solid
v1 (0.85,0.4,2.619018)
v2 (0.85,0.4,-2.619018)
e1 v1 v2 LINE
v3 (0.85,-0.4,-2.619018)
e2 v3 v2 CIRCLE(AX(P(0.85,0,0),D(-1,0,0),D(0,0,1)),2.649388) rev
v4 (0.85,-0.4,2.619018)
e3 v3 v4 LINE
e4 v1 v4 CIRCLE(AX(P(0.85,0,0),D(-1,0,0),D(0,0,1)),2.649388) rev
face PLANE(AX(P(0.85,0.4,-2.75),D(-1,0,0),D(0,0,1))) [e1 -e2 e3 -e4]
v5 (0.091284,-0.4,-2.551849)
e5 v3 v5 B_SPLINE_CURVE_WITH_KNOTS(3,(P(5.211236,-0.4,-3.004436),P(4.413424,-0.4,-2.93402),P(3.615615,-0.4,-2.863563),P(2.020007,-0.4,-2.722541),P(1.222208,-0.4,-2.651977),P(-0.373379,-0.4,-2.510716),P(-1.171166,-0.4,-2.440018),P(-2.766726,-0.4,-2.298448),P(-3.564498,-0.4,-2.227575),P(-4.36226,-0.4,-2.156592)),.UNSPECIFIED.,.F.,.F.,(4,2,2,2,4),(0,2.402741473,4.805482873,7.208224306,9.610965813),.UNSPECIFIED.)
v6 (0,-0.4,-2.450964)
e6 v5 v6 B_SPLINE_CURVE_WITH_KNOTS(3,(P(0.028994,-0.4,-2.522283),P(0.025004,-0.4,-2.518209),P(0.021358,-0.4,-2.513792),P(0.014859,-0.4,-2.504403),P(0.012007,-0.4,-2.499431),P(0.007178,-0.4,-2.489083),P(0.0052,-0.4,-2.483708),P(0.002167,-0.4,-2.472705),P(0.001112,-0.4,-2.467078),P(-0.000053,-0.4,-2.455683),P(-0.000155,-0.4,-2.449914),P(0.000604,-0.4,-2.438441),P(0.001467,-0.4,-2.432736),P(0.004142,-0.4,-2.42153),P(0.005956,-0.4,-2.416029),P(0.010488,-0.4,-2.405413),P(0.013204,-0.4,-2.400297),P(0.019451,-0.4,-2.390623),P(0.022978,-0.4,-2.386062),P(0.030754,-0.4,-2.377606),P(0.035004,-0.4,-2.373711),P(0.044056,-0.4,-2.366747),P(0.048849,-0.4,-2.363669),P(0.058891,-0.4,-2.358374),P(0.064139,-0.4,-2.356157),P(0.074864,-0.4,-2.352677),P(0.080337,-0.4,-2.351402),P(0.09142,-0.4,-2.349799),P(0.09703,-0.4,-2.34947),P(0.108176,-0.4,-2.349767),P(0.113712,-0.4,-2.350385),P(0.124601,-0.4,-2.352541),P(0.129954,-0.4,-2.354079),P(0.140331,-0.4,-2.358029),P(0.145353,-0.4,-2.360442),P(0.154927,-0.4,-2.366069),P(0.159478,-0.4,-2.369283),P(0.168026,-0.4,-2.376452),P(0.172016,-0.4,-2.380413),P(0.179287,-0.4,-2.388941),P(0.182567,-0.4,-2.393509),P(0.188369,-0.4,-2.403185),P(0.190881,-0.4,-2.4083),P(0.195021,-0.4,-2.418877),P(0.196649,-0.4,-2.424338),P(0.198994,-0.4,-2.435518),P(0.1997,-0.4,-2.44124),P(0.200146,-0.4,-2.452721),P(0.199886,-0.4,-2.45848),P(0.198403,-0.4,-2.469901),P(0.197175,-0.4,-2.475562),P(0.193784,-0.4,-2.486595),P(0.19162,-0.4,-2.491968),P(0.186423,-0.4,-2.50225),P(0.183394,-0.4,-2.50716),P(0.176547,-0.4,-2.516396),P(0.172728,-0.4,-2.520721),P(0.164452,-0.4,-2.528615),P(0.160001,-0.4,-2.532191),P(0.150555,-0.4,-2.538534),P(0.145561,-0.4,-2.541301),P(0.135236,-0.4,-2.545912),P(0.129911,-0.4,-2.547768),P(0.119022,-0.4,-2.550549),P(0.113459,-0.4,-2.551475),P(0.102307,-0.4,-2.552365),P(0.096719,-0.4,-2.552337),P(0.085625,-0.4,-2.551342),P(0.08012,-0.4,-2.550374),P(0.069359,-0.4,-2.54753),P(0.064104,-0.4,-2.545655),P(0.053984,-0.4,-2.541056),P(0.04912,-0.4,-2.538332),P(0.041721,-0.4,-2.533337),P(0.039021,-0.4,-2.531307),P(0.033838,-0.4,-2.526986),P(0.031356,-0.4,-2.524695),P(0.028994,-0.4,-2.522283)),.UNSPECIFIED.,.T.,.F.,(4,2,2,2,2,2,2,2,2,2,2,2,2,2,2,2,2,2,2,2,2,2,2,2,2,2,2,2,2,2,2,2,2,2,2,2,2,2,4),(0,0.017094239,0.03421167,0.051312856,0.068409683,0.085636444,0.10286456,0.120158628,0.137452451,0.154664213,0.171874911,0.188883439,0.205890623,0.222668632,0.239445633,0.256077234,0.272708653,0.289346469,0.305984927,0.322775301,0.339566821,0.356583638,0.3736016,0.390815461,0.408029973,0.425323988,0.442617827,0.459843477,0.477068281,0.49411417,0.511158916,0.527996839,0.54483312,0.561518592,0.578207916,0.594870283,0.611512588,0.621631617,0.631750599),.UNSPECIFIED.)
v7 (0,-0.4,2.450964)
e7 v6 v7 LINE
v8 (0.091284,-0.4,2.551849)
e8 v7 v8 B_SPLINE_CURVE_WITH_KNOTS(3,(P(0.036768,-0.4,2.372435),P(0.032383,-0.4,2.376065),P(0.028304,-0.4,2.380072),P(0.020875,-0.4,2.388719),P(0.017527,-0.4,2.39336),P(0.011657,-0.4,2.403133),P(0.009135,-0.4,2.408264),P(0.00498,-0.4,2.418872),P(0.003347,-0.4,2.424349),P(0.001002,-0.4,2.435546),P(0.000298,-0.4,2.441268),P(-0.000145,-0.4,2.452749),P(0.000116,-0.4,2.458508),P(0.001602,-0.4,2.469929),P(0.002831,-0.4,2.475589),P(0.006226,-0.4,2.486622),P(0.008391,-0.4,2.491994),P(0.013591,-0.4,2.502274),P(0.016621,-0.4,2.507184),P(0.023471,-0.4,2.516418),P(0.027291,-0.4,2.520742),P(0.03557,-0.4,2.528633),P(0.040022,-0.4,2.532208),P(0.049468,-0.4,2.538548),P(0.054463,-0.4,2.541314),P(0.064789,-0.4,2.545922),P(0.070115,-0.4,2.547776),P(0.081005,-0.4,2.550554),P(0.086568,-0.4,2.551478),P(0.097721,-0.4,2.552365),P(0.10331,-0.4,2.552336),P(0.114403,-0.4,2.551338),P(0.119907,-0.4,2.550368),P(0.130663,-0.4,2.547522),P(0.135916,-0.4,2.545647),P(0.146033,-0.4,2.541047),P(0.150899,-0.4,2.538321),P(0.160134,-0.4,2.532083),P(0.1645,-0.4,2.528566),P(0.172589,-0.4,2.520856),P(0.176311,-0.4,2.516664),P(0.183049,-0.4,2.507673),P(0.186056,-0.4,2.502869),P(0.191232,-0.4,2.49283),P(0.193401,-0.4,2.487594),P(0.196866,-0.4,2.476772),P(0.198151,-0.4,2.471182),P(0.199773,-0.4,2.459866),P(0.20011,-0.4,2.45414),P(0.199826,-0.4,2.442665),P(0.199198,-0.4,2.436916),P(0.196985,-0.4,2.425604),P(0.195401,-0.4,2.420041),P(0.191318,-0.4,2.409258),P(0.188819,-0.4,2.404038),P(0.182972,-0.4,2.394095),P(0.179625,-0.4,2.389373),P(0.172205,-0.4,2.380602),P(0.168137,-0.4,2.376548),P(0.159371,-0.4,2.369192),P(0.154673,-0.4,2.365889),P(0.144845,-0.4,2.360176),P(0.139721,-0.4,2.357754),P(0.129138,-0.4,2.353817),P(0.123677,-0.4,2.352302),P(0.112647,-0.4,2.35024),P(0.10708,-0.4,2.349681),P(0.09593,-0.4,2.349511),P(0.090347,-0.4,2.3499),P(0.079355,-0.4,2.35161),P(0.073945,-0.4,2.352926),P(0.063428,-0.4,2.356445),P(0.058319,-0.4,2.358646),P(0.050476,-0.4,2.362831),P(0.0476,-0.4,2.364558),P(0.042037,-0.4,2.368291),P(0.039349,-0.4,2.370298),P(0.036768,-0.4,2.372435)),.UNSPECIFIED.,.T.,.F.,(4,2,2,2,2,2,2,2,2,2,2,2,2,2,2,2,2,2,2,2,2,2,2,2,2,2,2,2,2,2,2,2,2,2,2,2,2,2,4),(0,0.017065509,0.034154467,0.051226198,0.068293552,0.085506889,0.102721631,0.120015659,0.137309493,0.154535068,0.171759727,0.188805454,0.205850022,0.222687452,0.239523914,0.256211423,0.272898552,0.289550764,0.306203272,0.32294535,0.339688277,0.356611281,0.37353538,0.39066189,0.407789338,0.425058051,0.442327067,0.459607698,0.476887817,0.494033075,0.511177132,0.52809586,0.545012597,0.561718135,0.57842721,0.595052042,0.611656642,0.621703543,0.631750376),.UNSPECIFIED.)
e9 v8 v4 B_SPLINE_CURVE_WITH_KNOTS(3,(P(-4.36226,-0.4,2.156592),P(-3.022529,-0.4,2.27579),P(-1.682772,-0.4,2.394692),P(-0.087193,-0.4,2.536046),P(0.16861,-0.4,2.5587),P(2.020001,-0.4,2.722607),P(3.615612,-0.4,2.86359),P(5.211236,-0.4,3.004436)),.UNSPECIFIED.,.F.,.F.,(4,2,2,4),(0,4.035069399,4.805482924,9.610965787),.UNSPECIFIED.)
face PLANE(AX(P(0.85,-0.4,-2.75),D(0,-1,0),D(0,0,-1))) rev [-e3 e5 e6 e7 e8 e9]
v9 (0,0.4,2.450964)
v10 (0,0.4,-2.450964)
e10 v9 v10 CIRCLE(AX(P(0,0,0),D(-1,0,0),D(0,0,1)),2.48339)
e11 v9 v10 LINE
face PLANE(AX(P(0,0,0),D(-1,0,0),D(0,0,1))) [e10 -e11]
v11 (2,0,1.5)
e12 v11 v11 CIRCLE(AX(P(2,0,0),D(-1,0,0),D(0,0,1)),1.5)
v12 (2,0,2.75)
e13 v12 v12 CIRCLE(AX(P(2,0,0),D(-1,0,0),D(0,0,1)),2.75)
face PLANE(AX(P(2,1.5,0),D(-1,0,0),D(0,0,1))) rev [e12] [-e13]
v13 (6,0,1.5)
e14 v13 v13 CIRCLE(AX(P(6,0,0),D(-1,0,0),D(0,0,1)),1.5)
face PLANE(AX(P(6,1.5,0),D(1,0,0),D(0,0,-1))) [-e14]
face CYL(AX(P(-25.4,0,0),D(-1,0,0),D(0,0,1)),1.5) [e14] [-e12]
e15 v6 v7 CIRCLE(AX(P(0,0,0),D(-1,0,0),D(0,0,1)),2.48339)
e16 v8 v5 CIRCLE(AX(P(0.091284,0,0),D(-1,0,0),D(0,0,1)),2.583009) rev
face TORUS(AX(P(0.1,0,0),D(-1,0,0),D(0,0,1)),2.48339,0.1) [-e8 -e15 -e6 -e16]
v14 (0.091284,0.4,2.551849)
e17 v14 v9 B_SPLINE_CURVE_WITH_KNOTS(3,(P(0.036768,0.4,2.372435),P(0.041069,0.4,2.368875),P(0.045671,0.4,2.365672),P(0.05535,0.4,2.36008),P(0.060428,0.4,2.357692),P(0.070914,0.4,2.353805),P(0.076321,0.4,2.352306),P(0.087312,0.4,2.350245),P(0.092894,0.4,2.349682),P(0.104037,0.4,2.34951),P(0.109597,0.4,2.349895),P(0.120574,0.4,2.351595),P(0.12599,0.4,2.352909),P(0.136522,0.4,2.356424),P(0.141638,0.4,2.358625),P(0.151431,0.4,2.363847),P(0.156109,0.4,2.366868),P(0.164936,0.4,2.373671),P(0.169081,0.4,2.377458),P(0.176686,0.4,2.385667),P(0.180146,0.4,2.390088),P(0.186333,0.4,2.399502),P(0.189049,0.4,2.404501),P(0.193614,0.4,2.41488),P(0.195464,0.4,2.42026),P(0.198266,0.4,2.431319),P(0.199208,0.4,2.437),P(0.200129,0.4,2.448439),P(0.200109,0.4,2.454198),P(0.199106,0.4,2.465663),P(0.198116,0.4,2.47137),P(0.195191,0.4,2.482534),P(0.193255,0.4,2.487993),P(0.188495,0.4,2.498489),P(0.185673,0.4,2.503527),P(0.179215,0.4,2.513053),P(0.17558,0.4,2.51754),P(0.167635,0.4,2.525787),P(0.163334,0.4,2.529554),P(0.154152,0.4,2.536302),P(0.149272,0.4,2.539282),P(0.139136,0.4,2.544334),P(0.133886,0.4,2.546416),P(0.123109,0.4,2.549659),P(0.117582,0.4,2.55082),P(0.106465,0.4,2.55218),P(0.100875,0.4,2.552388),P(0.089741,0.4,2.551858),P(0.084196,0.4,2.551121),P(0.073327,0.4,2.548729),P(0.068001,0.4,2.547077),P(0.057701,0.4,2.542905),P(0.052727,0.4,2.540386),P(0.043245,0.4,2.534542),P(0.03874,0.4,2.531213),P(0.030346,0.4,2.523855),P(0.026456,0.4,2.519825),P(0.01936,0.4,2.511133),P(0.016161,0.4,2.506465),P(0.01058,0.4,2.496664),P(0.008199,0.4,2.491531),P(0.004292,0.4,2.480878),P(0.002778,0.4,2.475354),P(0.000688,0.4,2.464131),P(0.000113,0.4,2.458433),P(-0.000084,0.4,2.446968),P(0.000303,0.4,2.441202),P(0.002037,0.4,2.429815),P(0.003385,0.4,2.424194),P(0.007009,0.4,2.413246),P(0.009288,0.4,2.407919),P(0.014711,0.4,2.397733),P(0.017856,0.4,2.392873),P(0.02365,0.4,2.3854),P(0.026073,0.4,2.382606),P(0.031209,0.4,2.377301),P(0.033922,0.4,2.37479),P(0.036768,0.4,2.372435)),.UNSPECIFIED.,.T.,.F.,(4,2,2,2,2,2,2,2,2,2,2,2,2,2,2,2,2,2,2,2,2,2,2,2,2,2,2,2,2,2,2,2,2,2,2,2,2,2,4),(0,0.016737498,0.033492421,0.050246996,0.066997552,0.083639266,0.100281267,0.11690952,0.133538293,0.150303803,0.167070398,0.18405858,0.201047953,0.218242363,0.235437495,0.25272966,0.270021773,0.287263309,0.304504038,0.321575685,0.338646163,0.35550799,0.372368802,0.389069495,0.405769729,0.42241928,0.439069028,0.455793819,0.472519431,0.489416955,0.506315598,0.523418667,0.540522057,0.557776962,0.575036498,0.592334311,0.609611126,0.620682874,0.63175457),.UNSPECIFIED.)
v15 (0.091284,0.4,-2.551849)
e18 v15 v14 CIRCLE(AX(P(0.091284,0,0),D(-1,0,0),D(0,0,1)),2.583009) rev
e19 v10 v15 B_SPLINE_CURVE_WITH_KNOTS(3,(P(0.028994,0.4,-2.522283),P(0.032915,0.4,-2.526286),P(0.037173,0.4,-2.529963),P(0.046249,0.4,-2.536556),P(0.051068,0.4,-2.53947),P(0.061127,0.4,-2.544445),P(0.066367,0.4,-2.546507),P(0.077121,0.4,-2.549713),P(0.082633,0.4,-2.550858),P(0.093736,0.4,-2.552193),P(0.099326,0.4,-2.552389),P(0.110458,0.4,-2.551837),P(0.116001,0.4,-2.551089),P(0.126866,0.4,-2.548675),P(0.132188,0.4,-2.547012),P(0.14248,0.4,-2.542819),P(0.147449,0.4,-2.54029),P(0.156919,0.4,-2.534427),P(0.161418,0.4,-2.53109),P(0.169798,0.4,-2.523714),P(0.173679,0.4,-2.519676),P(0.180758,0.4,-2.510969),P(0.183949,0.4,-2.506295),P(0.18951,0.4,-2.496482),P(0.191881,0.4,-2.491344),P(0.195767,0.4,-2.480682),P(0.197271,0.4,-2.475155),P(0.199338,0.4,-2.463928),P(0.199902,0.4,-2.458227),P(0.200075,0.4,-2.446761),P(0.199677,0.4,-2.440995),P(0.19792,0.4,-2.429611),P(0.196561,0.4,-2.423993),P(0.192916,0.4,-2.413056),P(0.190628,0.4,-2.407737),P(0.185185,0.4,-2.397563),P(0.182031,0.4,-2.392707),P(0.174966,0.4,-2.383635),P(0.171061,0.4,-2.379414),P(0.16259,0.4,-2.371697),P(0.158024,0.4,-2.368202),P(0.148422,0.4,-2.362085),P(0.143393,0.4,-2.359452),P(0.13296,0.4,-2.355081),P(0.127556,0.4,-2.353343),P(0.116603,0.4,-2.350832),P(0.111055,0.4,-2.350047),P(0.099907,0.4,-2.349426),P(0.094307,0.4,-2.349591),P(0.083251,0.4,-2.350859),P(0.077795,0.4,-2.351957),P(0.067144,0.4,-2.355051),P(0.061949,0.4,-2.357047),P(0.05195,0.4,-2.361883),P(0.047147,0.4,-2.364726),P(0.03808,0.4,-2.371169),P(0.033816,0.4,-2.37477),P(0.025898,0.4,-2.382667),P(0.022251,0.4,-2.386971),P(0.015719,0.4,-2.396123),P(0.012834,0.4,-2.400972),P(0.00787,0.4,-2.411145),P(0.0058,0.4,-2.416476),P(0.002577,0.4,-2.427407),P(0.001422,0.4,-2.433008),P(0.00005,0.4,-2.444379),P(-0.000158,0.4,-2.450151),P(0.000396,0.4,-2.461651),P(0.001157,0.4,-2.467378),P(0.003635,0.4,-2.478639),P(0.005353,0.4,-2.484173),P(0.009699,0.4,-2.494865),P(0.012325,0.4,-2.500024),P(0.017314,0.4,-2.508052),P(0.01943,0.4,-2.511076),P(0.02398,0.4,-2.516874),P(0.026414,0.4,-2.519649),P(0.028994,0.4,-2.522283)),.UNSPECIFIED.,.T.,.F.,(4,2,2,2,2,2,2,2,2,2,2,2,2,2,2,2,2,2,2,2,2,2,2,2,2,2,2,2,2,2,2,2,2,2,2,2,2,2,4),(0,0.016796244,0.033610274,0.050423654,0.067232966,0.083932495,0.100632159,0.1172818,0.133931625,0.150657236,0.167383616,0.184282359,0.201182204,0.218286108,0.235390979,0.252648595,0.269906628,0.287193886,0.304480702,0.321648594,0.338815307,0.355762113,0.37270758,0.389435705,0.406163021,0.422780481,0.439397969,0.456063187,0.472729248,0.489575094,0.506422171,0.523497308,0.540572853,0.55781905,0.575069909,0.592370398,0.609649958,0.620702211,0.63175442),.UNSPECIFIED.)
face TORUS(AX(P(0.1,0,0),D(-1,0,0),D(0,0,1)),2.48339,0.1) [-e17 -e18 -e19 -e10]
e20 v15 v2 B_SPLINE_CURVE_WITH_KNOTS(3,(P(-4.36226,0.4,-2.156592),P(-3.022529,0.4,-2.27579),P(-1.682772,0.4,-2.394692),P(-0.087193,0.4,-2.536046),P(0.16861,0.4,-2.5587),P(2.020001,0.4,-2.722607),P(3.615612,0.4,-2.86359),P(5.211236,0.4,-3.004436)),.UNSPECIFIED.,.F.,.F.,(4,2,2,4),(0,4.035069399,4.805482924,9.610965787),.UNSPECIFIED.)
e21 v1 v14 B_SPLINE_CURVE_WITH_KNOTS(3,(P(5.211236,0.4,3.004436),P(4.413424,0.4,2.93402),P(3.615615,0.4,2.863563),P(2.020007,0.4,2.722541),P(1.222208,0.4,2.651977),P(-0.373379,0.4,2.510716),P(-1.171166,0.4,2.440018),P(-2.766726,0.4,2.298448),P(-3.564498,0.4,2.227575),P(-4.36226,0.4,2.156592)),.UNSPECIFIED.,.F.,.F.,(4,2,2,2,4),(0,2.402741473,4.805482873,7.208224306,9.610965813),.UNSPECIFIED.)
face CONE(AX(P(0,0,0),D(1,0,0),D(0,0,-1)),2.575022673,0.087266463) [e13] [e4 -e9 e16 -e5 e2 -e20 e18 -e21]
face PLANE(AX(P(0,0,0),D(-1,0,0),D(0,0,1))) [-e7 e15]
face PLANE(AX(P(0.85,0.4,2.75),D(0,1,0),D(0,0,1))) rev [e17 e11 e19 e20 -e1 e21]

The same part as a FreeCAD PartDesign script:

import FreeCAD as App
import Part
import Sketcher
Q = App.Units.Quantity


def edges_at(feature, points):
    """Names of the edges that pass closest to the given points."""
    edges = feature.Shape.Edges
    near = lambda p: min(range(len(edges)), key=lambda i: edges[i].distToShape(Part.Vertex(*p))[0])
    return sorted({f"Edge{near(p) + 1}" for p in points})

doc = App.newDocument("Part")
body = doc.addObject("PartDesign::Body", "Body")

sketch1 = body.newObject("Sketcher::SketchObject", "Sketch")
sketch1.AttachmentSupport = (doc.getObject("XY_Plane"), [""])
sketch1.MapMode = "FlatFace"
sketch1.addGeometry(Part.LineSegment(App.Vector(2, 1.5, 0), App.Vector(2, 2.8, 0)), False)
sketch1.addGeometry(Part.LineSegment(App.Vector(2, 2.8, 0), App.Vector(0, 2.6, 0)), False)
sketch1.addGeometry(Part.LineSegment(App.Vector(0, 2.6, 0), App.Vector(0, 0, 0)), False)
sketch1.addGeometry(Part.LineSegment(App.Vector(0, 0, 0), App.Vector(6, 0, 0)), False)
sketch1.addGeometry(Part.LineSegment(App.Vector(6, 0, 0), App.Vector(6, 1.5, 0)), False)
sketch1.addGeometry(Part.LineSegment(App.Vector(6, 1.5, 0), App.Vector(2, 1.5, 0)), False)
sketch1.addConstraint(Sketcher.Constraint("Coincident", 0, 2, 1, 1))
sketch1.addConstraint(Sketcher.Constraint("Coincident", 1, 2, 2, 1))
sketch1.addConstraint(Sketcher.Constraint("Coincident", 2, 2, 3, 1))
sketch1.addConstraint(Sketcher.Constraint("Coincident", 3, 2, 4, 1))
sketch1.addConstraint(Sketcher.Constraint("Coincident", 4, 2, 5, 1))
sketch1.addConstraint(Sketcher.Constraint("Coincident", 5, 2, 0, 1))
sketch1.addConstraint(Sketcher.Constraint("Vertical", 0))
sketch1.addConstraint(Sketcher.Constraint("Vertical", 2))
sketch1.addConstraint(Sketcher.Constraint("Horizontal", 3))
sketch1.addConstraint(Sketcher.Constraint("Vertical", 4))
sketch1.addConstraint(Sketcher.Constraint("Horizontal", 5))
sketch1.addConstraint(Sketcher.Constraint("Coincident", 2, 2, -1, 1))
sketch1.addConstraint(Sketcher.Constraint("DistanceX", 3, 1, 3, 2, 6.0))
sketch1.addConstraint(Sketcher.Constraint("DistanceX", 5, 2, 5, 1, 4.0))
sketch1.addConstraint(Sketcher.Constraint("Angle", 1, Q("-175 deg")))
sketch1.addConstraint(Sketcher.Constraint("DistanceY", 4, 1, 4, 2, 1.5))
sketch1.addConstraint(Sketcher.Constraint("DistanceY", 0, 1, 0, 2, 1.25))
revolution = body.newObject("PartDesign::Revolution", "Revolution")
revolution.Profile = sketch1
revolution.ReferenceAxis = (sketch1, ["H_Axis"])
revolution.Angle = 360
doc.recompute()

fillet = body.newObject("PartDesign::Fillet", "Fillet")
fillet.Base = (revolution, edges_at(revolution, [(0, 0, -2.575)]))
fillet.Radius = 0.1

sketch2 = body.newObject("Sketcher::SketchObject", "Sketch001")
sketch2.AttachmentSupport = (doc.getObject("YZ_Plane"), [""])
sketch2.MapMode = "FlatFace"
sketch2.addGeometry(Part.LineSegment(App.Vector(0.4, 2.8, 0), App.Vector(-0.4, 2.8, 0)), False)
sketch2.addGeometry(Part.LineSegment(App.Vector(-0.4, 2.8, 0), App.Vector(-0.4, -2.8, 0)), False)
sketch2.addGeometry(Part.LineSegment(App.Vector(-0.4, -2.8, 0), App.Vector(0.4, -2.8, 0)), False)
sketch2.addGeometry(Part.LineSegment(App.Vector(0.4, -2.8, 0), App.Vector(0.4, 2.8, 0)), False)
sketch2.addConstraint(Sketcher.Constraint("Coincident", 0, 2, 1, 1))
sketch2.addConstraint(Sketcher.Constraint("Coincident", 1, 2, 2, 1))
sketch2.addConstraint(Sketcher.Constraint("Coincident", 2, 2, 3, 1))
sketch2.addConstraint(Sketcher.Constraint("Coincident", 3, 2, 0, 1))
sketch2.addConstraint(Sketcher.Constraint("Horizontal", 0))
sketch2.addConstraint(Sketcher.Constraint("Vertical", 1))
sketch2.addConstraint(Sketcher.Constraint("Horizontal", 2))
sketch2.addConstraint(Sketcher.Constraint("Vertical", 3))
sketch2.addConstraint(Sketcher.Constraint("Symmetric", 0, 2, 2, 2, -1, 1))
sketch2.addConstraint(Sketcher.Constraint("DistanceX", 0, 2, 0, 1, 0.8))
sketch2.addConstraint(Sketcher.Constraint("DistanceY", 1, 2, 1, 1, 5.5))
pocket1 = body.newObject("PartDesign::Pocket", "Pocket")
pocket1.Profile = sketch2
pocket1.Length = 0.85
pocket1.Reversed = True

doc.recompute()
